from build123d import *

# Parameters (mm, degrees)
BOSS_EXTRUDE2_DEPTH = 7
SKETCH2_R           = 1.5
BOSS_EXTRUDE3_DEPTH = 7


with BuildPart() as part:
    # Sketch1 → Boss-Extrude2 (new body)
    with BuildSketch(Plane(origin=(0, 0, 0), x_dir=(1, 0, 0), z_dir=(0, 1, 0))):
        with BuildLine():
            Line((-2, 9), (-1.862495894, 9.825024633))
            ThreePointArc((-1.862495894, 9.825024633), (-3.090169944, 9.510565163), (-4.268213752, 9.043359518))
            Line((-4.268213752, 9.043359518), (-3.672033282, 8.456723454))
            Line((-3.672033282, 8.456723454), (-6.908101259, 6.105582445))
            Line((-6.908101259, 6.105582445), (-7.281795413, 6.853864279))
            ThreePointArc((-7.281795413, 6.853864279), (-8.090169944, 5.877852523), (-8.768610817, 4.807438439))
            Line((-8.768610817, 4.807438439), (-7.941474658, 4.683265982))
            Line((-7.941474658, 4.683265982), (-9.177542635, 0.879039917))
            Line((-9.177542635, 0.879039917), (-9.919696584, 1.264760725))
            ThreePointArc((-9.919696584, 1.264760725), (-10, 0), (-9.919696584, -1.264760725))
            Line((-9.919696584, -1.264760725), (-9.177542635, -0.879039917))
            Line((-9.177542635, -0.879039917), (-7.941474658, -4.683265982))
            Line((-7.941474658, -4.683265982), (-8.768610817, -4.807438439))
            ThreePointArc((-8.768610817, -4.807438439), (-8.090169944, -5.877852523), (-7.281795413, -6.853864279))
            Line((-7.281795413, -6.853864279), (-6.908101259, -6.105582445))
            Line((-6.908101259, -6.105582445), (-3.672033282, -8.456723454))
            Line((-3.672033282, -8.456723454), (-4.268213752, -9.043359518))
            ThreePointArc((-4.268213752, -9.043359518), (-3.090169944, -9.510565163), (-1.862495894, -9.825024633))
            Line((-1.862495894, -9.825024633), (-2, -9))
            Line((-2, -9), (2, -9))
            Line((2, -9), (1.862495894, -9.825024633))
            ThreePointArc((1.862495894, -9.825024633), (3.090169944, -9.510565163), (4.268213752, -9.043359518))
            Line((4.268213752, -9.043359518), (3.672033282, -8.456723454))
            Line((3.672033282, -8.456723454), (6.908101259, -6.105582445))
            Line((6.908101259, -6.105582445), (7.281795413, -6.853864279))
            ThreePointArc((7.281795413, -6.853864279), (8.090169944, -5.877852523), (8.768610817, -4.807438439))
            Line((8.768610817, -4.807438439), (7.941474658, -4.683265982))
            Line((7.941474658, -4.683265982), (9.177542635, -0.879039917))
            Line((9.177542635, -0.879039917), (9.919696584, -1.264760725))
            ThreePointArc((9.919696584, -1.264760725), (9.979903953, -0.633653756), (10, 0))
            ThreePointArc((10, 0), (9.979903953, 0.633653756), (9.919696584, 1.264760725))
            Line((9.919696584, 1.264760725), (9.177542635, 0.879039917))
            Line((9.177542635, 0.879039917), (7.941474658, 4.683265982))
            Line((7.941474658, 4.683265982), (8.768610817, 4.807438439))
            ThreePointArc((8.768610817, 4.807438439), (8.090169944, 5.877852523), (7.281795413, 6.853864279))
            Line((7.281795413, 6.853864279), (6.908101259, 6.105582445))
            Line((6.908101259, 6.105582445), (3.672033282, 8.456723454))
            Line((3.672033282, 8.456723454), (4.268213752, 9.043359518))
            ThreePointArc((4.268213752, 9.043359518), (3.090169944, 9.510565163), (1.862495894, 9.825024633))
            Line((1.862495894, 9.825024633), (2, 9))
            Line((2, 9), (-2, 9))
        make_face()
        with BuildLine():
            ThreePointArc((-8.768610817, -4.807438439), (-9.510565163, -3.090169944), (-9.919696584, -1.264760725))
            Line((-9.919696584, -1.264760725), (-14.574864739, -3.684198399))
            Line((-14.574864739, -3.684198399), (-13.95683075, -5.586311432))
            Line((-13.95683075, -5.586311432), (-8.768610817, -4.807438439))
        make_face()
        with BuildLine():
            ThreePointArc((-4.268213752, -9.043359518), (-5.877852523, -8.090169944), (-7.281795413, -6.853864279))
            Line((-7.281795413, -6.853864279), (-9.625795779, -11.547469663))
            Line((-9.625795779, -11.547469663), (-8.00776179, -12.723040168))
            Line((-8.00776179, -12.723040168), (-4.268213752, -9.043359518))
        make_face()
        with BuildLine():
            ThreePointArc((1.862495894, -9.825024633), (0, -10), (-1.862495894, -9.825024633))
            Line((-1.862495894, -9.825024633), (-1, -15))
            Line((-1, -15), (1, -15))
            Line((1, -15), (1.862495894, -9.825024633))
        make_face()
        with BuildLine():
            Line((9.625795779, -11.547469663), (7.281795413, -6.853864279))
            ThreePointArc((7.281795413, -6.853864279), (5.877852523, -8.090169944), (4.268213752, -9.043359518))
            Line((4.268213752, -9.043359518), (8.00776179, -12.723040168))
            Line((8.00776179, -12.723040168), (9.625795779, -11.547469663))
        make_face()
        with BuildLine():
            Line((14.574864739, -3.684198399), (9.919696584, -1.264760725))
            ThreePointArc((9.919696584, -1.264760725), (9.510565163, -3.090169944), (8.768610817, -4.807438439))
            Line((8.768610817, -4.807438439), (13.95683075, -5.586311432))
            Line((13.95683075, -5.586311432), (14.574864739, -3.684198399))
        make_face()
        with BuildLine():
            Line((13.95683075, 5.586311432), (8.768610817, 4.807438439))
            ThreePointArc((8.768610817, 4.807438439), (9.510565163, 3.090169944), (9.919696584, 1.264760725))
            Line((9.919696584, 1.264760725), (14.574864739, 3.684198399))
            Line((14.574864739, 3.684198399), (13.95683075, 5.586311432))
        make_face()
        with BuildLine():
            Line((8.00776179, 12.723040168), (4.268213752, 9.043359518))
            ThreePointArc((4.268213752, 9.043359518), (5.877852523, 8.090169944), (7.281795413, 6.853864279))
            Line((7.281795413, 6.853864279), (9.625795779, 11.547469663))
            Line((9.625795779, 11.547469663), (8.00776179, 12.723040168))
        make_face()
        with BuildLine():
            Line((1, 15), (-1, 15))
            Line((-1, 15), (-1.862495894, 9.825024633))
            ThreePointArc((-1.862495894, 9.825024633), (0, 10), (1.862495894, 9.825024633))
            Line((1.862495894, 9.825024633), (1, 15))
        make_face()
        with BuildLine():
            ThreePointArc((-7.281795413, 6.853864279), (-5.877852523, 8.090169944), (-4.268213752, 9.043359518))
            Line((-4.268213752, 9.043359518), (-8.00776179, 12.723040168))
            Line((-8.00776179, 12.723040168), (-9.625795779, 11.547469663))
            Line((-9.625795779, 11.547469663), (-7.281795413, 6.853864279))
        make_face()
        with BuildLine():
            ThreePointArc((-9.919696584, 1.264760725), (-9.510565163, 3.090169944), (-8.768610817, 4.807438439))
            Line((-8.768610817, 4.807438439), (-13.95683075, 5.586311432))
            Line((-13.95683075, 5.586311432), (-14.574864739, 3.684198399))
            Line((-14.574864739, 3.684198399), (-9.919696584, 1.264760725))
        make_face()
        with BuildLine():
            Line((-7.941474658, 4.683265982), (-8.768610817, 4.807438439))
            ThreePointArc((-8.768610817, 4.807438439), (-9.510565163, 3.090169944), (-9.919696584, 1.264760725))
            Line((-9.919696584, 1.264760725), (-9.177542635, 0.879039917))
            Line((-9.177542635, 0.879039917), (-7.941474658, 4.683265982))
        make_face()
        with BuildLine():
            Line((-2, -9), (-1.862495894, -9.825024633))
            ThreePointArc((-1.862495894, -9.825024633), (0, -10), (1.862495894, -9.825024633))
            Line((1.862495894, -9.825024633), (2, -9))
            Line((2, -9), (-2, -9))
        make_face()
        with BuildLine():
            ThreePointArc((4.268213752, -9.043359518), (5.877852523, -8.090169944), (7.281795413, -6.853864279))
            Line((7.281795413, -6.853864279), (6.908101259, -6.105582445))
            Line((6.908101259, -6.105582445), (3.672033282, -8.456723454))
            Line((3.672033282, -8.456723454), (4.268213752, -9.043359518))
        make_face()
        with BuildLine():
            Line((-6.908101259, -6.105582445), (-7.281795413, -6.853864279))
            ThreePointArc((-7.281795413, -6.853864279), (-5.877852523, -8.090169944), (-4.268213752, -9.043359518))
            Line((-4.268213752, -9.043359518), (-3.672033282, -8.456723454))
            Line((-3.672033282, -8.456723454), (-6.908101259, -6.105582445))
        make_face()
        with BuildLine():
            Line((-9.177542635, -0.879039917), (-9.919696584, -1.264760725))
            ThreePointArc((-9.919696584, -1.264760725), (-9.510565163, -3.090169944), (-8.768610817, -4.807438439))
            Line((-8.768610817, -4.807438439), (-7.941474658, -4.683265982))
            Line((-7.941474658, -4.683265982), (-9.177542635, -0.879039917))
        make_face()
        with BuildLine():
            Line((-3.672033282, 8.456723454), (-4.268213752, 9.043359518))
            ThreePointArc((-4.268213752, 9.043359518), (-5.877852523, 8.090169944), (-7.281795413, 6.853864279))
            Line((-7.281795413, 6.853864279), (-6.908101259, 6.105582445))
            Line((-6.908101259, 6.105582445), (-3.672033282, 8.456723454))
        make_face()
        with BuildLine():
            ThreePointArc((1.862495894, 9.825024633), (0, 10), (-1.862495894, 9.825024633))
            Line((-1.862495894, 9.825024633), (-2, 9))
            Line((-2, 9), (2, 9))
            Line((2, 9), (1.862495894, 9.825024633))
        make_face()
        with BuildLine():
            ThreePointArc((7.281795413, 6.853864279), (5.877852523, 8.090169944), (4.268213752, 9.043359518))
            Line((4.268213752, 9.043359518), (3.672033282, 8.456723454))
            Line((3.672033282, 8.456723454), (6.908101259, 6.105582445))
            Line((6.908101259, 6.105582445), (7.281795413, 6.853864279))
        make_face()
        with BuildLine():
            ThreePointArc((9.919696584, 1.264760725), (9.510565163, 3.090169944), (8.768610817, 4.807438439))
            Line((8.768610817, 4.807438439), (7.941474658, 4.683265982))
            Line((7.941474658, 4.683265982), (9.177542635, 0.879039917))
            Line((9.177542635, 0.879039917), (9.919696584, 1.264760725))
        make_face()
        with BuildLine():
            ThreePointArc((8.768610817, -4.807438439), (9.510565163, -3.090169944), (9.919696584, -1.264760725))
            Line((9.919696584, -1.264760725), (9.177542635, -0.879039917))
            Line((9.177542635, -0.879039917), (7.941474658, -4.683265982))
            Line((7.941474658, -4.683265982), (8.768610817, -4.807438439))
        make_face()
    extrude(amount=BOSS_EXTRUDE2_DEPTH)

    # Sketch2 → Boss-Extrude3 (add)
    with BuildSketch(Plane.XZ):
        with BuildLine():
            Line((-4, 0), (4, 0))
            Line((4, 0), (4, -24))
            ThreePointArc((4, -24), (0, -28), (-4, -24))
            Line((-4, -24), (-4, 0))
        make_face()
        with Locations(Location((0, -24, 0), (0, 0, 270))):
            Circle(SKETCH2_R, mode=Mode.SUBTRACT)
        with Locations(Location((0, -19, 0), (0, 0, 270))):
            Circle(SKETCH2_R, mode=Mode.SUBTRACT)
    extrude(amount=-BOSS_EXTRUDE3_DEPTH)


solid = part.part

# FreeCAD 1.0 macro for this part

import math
import FreeCAD as App
import Part
import Sketcher

V = App.Vector
Q = App.Units.Quantity

doc = App.newDocument("Part")
body = doc.addObject("PartDesign::Body", "Body")

# Sketch on XZ plane
sketch1 = body.newObject("Sketcher::SketchObject", "Sketch")
sketch1.AttachmentSupport = (doc.getObject("XZ_Plane"), [""])
sketch1.MapMode = "FlatFace"
sketch1.addGeometry([
    Part.ArcOfCircle(Part.Circle(V(0, 0, 0), V(0, 0, 1), 10), math.radians(-115.27), math.radians(-100.73)),  # 0
    Part.LineSegment(V(-4.3, -9, 0), V(-8, -12.7, 0)),  # 1
    Part.LineSegment(V(-8, -12.7, 0), V(-9.6, -11.5, 0)),  # 2
    Part.LineSegment(V(-9.6, -11.5, 0), V(-7.3, -6.9, 0)),  # 3
    Part.ArcOfCircle(Part.Circle(V(0, 0, 0), V(0, 0, 1), 10), math.radians(-151.27), math.radians(-136.73)),  # 4
    Part.LineSegment(V(-8.8, -4.8, 0), V(-14, -5.6, 0)),  # 5
    Part.LineSegment(V(-14, -5.6, 0), V(-14.6, -3.7, 0)),  # 6
    Part.LineSegment(V(-14.6, -3.7, 0), V(-9.9, -1.3, 0)),  # 7
    Part.ArcOfCircle(Part.Circle(V(0, 0, 0), V(0, 0, 1), 10), math.radians(172.73), math.radians(187.27)),  # 8
    Part.LineSegment(V(-9.9, 1.3, 0), V(-14.6, 3.7, 0)),  # 9
    Part.LineSegment(V(-14.6, 3.7, 0), V(-14, 5.6, 0)),  # 10
    Part.LineSegment(V(-14, 5.6, 0), V(-8.8, 4.8, 0)),  # 11
    Part.ArcOfCircle(Part.Circle(V(0, 0, 0), V(0, 0, 1), 10), math.radians(136.73), math.radians(151.27)),  # 12
    Part.LineSegment(V(-7.3, 6.9, 0), V(-9.6, 11.5, 0)),  # 13
    Part.LineSegment(V(-9.6, 11.5, 0), V(-8, 12.7, 0)),  # 14
    Part.LineSegment(V(-8, 12.7, 0), V(-4.3, 9, 0)),  # 15
    Part.ArcOfCircle(Part.Circle(V(0, 0, 0), V(0, 0, 1), 10), math.radians(100.73), math.radians(115.27)),  # 16
    Part.LineSegment(V(-1.9, 9.8, 0), V(-1, 15, 0)),  # 17
    Part.LineSegment(V(-1, 15, 0), V(1, 15, 0)),  # 18
    Part.LineSegment(V(1, 15, 0), V(1.9, 9.8, 0)),  # 19
    Part.ArcOfCircle(Part.Circle(V(0, 0, 0), V(0, 0, 1), 10), math.radians(64.73), math.radians(79.27)),  # 20
    Part.LineSegment(V(4.3, 9, 0), V(8, 12.7, 0)),  # 21
    Part.LineSegment(V(8, 12.7, 0), V(9.6, 11.5, 0)),  # 22
    Part.LineSegment(V(9.6, 11.5, 0), V(7.3, 6.9, 0)),  # 23
    Part.ArcOfCircle(Part.Circle(V(0, 0, 0), V(0, 0, 1), 10), math.radians(28.73), math.radians(43.27)),  # 24
    Part.LineSegment(V(8.8, 4.8, 0), V(14, 5.6, 0)),  # 25
    Part.LineSegment(V(14, 5.6, 0), V(14.6, 3.7, 0)),  # 26
    Part.LineSegment(V(14.6, 3.7, 0), V(9.9, 1.3, 0)),  # 27
    Part.ArcOfCircle(Part.Circle(V(0, 0, 0), V(0, 0, 1), 10), math.radians(0), math.radians(7.27)),  # 28
    Part.ArcOfCircle(Part.Circle(V(0, 0, 0), V(0, 0, 1), 10), math.radians(-7.27), math.radians(0)),  # 29
    Part.LineSegment(V(9.9, -1.3, 0), V(14.6, -3.7, 0)),  # 30
    Part.LineSegment(V(14.6, -3.7, 0), V(14, -5.6, 0)),  # 31
    Part.LineSegment(V(14, -5.6, 0), V(8.8, -4.8, 0)),  # 32
    Part.ArcOfCircle(Part.Circle(V(0, 0, 0), V(0, 0, 1), 10), math.radians(-43.27), math.radians(-28.73)),  # 33
    Part.LineSegment(V(7.3, -6.9, 0), V(9.6, -11.5, 0)),  # 34
    Part.LineSegment(V(9.6, -11.5, 0), V(8, -12.7, 0)),  # 35
    Part.LineSegment(V(8, -12.7, 0), V(4.3, -9, 0)),  # 36
    Part.ArcOfCircle(Part.Circle(V(0, 0, 0), V(0, 0, 1), 10), math.radians(-79.27), math.radians(-64.73)),  # 37
    Part.LineSegment(V(1.9, -9.8, 0), V(1, -15, 0)),  # 38
    Part.LineSegment(V(1, -15, 0), V(-1, -15, 0)),  # 39
    Part.LineSegment(V(-1, -15, 0), V(-1.9, -9.8, 0)),  # 40
], False)
sketch1.addConstraint([
    Sketcher.Constraint("Coincident", 0, 1, 1, 1),
    Sketcher.Constraint("Coincident", 1, 2, 2, 1),
    Sketcher.Constraint("Coincident", 2, 2, 3, 1),
    Sketcher.Constraint("Coincident", 3, 2, 4, 2),
    Sketcher.Constraint("Coincident", 4, 1, 5, 1),
    Sketcher.Constraint("Coincident", 5, 2, 6, 1),
    Sketcher.Constraint("Coincident", 6, 2, 7, 1),
    Sketcher.Constraint("Coincident", 7, 2, 8, 2),
    Sketcher.Constraint("Coincident", 8, 1, 9, 1),
    Sketcher.Constraint("Coincident", 9, 2, 10, 1),
    Sketcher.Constraint("Coincident", 10, 2, 11, 1),
    Sketcher.Constraint("Coincident", 11, 2, 12, 2),
    Sketcher.Constraint("Coincident", 12, 1, 13, 1),
    Sketcher.Constraint("Coincident", 13, 2, 14, 1),
    Sketcher.Constraint("Coincident", 14, 2, 15, 1),
    Sketcher.Constraint("Coincident", 15, 2, 16, 2),
    Sketcher.Constraint("Coincident", 16, 1, 17, 1),
    Sketcher.Constraint("Coincident", 17, 2, 18, 1),
    Sketcher.Constraint("Coincident", 18, 2, 19, 1),
    Sketcher.Constraint("Coincident", 19, 2, 20, 2),
    Sketcher.Constraint("Coincident", 20, 1, 21, 1),
    Sketcher.Constraint("Coincident", 21, 2, 22, 1),
    Sketcher.Constraint("Coincident", 22, 2, 23, 1),
    Sketcher.Constraint("Coincident", 23, 2, 24, 2),
    Sketcher.Constraint("Coincident", 24, 1, 25, 1),
    Sketcher.Constraint("Coincident", 25, 2, 26, 1),
    Sketcher.Constraint("Coincident", 26, 2, 27, 1),
    Sketcher.Constraint("Coincident", 27, 2, 28, 2),
    Sketcher.Constraint("Tangent", 28, 1, 29, 2),
    Sketcher.Constraint("Coincident", 29, 1, 30, 1),
    Sketcher.Constraint("Coincident", 30, 2, 31, 1),
    Sketcher.Constraint("Coincident", 31, 2, 32, 1),
    Sketcher.Constraint("Coincident", 32, 2, 33, 2),
    Sketcher.Constraint("Coincident", 33, 1, 34, 1),
    Sketcher.Constraint("Coincident", 34, 2, 35, 1),
    Sketcher.Constraint("Coincident", 35, 2, 36, 1),
    Sketcher.Constraint("Coincident", 36, 2, 37, 2),
    Sketcher.Constraint("Coincident", 37, 1, 38, 1),
    Sketcher.Constraint("Coincident", 38, 2, 39, 1),
    Sketcher.Constraint("Coincident", 39, 2, 40, 1),
    Sketcher.Constraint("Coincident", 40, 2, 0, 2),
    Sketcher.Constraint("Horizontal", 18),
    Sketcher.Constraint("Horizontal", 39),
    Sketcher.Constraint("Coincident", 0, 3, -1, 1),
    Sketcher.Constraint("Coincident", 4, 3, -1, 1),
    Sketcher.Constraint("Coincident", 8, 3, -1, 1),
    Sketcher.Constraint("Coincident", 12, 3, -1, 1),
    Sketcher.Constraint("Coincident", 16, 3, -1, 1),
    Sketcher.Constraint("Coincident", 20, 3, -1, 1),
    Sketcher.Constraint("Coincident", 24, 3, -1, 1),
    Sketcher.Constraint("Coincident", 28, 3, -1, 1),
    Sketcher.Constraint("Coincident", 33, 3, -1, 1),
    Sketcher.Constraint("Coincident", 37, 3, -1, 1),
    Sketcher.Constraint("Equal", 0, 4),
    Sketcher.Constraint("Equal", 4, 8),
    Sketcher.Constraint("Equal", 8, 12),
    Sketcher.Constraint("Equal", 12, 16),
    Sketcher.Constraint("Equal", 16, 20),
    Sketcher.Constraint("Equal", 20, 24),
    Sketcher.Constraint("Equal", 24, 28),
    Sketcher.Constraint("Equal", 28, 29),
    Sketcher.Constraint("Equal", 29, 33),
    Sketcher.Constraint("Equal", 33, 37),
    Sketcher.Constraint("Symmetric", 1, 2, 21, 2, -1, 1),
    Sketcher.Constraint("Symmetric", 2, 2, 22, 2, -1, 1),
    Sketcher.Constraint("Symmetric", 5, 2, 25, 2, -1, 1),
    Sketcher.Constraint("Symmetric", 6, 2, 26, 2, -1, 1),
    Sketcher.Constraint("Symmetric", 9, 2, 30, 2, -1, 1),
    Sketcher.Constraint("Symmetric", 10, 2, 31, 2, -1, 1),
    Sketcher.Constraint("Symmetric", 13, 2, 34, 2, -1, 1),
    Sketcher.Constraint("Symmetric", 14, 2, 35, 2, -1, 1),
    Sketcher.Constraint("Symmetric", 17, 2, 38, 2, -1, 1),
    Sketcher.Constraint("Symmetric", 14, 2, 21, 2, -2),
    Sketcher.Constraint("Symmetric", 13, 2, 22, 2, -2),
    Sketcher.Constraint("Symmetric", 10, 2, 25, 2, -2),
    Sketcher.Constraint("Symmetric", 9, 2, 26, 2, -2),
    Sketcher.Constraint("PointOnObject", 28, 1, -1),
    Sketcher.Constraint("Parallel", 1, 21),
    Sketcher.Constraint("Parallel", 3, 23),
    Sketcher.Constraint("Parallel", 5, 25),
    Sketcher.Constraint("Parallel", 7, 27),
    Sketcher.Constraint("Parallel", 9, 30),
    Sketcher.Constraint("Parallel", 11, 32),
    Sketcher.Constraint("Parallel", 13, 34),
    Sketcher.Constraint("Parallel", 15, 36),
    Sketcher.Constraint("Parallel", 17, 38),
    Sketcher.Constraint("Parallel", 19, 40),
    Sketcher.Constraint("Horizontal", 16, 1, 19, 2),
    Sketcher.Constraint("Horizontal", 15, 2, 20, 1),
    Sketcher.Constraint("Horizontal", 12, 1, 23, 2),
    Sketcher.Constraint("Horizontal", 11, 2, 24, 1),
    Sketcher.Constraint("Horizontal", 8, 1, 27, 2),
    Sketcher.Constraint("Horizontal", 37, 1, 40, 2),
    Sketcher.Constraint("Vertical", 18, 2, 38, 2),
    Sketcher.Constraint("Equal", 1, 3),
    Sketcher.Constraint("Equal", 3, 5),
    Sketcher.Constraint("Equal", 2, 6),
    Sketcher.Constraint("Equal", 5, 7),
    Sketcher.Constraint("Equal", 15, 17),
    Sketcher.Constraint("Radius", 0, Q("10 mm")),
    Sketcher.Constraint("DistanceX", 18, 1, 18, 2, Q("2 mm")),
    Sketcher.Constraint("Angle", 2, Q("144 deg")),
    Sketcher.Constraint("Angle", 6, Q("108 deg")),
    Sketcher.Constraint("Distance", 2, Q("2 mm")),
    Sketcher.Constraint("DistanceY", -1, 1, 17, 2, Q("15 mm")),
    Sketcher.Constraint("DistanceX", 2, 2, 3, 2, Q("2.344 mm")),
    Sketcher.Constraint("DistanceY", 6, 2, -1, 1, Q("3.684198 mm")),
    Sketcher.Constraint("DistanceY", 1, 2, 4, 1, Q("7.915602 mm")),
    Sketcher.Constraint("DistanceX", 7, 2, 3, 2, Q("2.637901 mm")),
    Sketcher.Constraint("DistanceY", 0, 1, 7, 2, Q("7.778599 mm")),
])
pad1 = body.newObject("PartDesign::Pad", "Pad")
pad1.Profile = sketch1
pad1.Length = 7
pad1.Reversed = True

# Sketch on XZ plane
sketch2 = body.newObject("Sketcher::SketchObject", "Sketch001")
sketch2.AttachmentSupport = (doc.getObject("XZ_Plane"), [""])
sketch2.MapMode = "FlatFace"
sketch2.addGeometry([
    Part.LineSegment(V(4, 0, 0), V(-4, 0, 0)),  # 0
    Part.LineSegment(V(-4, 0, 0), V(-4, -24, 0)),  # 1
    Part.ArcOfCircle(Part.Circle(V(0, -24, 0), V(0, 0, 1), 4), math.radians(180), math.radians(360)),  # 2
    Part.LineSegment(V(4, -24, 0), V(4, 0, 0)),  # 3
    Part.Circle(V(0, -24, 0), V(0, 0, 1), 1.5),  # 4
    Part.Circle(V(0, -19, 0), V(0, 0, 1), 1.5),  # 5
], False)
sketch2.addConstraint([
    Sketcher.Constraint("Coincident", 0, 2, 1, 1),
    Sketcher.Constraint("Tangent", 1, 2, 2, 1),
    Sketcher.Constraint("Tangent", 2, 2, 3, 1),
    Sketcher.Constraint("Coincident", 3, 2, 0, 1),
    Sketcher.Constraint("Horizontal", 0),
    Sketcher.Constraint("Vertical", 1),
    Sketcher.Constraint("Vertical", 3),
    Sketcher.Constraint("Coincident", 4, 3, 2, 3),
    Sketcher.Constraint("Equal", 4, 5),
    Sketcher.Constraint("Symmetric", 0, 2, 3, 2, -1, 1),
    Sketcher.Constraint("PointOnObject", 5, 3, -2),
    Sketcher.Constraint("Diameter", 4, Q("3 mm")),
    Sketcher.Constraint("Radius", 2, Q("4 mm")),
    Sketcher.Constraint("DistanceY", 1, 2, 1, 1, Q("24 mm")),
    Sketcher.Constraint("DistanceY", 5, 3, -1, 1, Q("19 mm")),
])
pad2 = body.newObject("PartDesign::Pad", "Pad001")
pad2.Profile = sketch2
pad2.Length = 7
pad2.Reversed = True

doc.recompute()
